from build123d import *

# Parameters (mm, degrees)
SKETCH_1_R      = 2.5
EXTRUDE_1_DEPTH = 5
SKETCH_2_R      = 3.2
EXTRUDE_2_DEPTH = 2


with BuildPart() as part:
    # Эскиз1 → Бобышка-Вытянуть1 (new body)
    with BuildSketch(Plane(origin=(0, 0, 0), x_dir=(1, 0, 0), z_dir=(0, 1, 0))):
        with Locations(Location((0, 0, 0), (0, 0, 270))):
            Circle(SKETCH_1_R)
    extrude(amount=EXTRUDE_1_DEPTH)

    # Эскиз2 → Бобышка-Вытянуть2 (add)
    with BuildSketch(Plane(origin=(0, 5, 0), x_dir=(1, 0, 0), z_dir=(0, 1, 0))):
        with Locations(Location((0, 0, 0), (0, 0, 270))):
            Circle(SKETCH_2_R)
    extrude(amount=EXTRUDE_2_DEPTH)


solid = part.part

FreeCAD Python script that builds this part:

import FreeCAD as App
import Part
import Sketcher

V = App.Vector

doc = App.newDocument("Part")
params = doc.addObject("Spreadsheet::Sheet", "Params")
for row, (alias, value) in enumerate([
    ("sketch1_diameter", "5 mm"),
    ("pad1_length", "5 mm"),
    ("sketch2_diameter", "6.4 mm"),
    ("pad2_length", "2 mm"),
], start=1):
    params.set(f"A{row}", alias)
    params.set(f"B{row}", "=" + value)
    params.setAlias(f"B{row}", alias)

body = doc.addObject("PartDesign::Body", "Body")

sketch1 = body.newObject("Sketcher::SketchObject", "Sketch")
sketch1.AttachmentSupport = (doc.getObject("XZ_Plane"), [""])
sketch1.MapMode = "FlatFace"
sketch1.addGeometry(Part.Circle(V(0, 0, 0), V(0, 0, 1), 2.5), False)
sketch1.addConstraint([
    Sketcher.Constraint("Coincident", 0, 3, -1, 1),
    Sketcher.Constraint("Diameter", 0, 5.0),
])
sketch1.setExpression("Constraints[1]", "Params.sketch1_diameter")
pad1 = body.newObject("PartDesign::Pad", "Pad")
pad1.Profile = sketch1
pad1.setExpression("Length", "Params.pad1_length")
pad1.Reversed = True

sketch2 = body.newObject("Sketcher::SketchObject", "Sketch001")
sketch2.AttachmentSupport = (doc.getObject("XZ_Plane"), [""])
sketch2.MapMode = "FlatFace"
sketch2.AttachmentOffset = App.Placement(V(0, 0, -5), App.Rotation())
sketch2.addGeometry(Part.Circle(V(0, 0, 0), V(0, 0, 1), 3.2), False)
sketch2.addConstraint([
    Sketcher.Constraint("Coincident", 0, 3, -1, 1),
    Sketcher.Constraint("Diameter", 0, 6.4),
])
sketch2.setExpression("Constraints[1]", "Params.sketch2_diameter")
pad2 = body.newObject("PartDesign::Pad", "Pad001")
pad2.Profile = sketch2
pad2.setExpression("Length", "Params.pad2_length")
pad2.Reversed = True

doc.recompute()
